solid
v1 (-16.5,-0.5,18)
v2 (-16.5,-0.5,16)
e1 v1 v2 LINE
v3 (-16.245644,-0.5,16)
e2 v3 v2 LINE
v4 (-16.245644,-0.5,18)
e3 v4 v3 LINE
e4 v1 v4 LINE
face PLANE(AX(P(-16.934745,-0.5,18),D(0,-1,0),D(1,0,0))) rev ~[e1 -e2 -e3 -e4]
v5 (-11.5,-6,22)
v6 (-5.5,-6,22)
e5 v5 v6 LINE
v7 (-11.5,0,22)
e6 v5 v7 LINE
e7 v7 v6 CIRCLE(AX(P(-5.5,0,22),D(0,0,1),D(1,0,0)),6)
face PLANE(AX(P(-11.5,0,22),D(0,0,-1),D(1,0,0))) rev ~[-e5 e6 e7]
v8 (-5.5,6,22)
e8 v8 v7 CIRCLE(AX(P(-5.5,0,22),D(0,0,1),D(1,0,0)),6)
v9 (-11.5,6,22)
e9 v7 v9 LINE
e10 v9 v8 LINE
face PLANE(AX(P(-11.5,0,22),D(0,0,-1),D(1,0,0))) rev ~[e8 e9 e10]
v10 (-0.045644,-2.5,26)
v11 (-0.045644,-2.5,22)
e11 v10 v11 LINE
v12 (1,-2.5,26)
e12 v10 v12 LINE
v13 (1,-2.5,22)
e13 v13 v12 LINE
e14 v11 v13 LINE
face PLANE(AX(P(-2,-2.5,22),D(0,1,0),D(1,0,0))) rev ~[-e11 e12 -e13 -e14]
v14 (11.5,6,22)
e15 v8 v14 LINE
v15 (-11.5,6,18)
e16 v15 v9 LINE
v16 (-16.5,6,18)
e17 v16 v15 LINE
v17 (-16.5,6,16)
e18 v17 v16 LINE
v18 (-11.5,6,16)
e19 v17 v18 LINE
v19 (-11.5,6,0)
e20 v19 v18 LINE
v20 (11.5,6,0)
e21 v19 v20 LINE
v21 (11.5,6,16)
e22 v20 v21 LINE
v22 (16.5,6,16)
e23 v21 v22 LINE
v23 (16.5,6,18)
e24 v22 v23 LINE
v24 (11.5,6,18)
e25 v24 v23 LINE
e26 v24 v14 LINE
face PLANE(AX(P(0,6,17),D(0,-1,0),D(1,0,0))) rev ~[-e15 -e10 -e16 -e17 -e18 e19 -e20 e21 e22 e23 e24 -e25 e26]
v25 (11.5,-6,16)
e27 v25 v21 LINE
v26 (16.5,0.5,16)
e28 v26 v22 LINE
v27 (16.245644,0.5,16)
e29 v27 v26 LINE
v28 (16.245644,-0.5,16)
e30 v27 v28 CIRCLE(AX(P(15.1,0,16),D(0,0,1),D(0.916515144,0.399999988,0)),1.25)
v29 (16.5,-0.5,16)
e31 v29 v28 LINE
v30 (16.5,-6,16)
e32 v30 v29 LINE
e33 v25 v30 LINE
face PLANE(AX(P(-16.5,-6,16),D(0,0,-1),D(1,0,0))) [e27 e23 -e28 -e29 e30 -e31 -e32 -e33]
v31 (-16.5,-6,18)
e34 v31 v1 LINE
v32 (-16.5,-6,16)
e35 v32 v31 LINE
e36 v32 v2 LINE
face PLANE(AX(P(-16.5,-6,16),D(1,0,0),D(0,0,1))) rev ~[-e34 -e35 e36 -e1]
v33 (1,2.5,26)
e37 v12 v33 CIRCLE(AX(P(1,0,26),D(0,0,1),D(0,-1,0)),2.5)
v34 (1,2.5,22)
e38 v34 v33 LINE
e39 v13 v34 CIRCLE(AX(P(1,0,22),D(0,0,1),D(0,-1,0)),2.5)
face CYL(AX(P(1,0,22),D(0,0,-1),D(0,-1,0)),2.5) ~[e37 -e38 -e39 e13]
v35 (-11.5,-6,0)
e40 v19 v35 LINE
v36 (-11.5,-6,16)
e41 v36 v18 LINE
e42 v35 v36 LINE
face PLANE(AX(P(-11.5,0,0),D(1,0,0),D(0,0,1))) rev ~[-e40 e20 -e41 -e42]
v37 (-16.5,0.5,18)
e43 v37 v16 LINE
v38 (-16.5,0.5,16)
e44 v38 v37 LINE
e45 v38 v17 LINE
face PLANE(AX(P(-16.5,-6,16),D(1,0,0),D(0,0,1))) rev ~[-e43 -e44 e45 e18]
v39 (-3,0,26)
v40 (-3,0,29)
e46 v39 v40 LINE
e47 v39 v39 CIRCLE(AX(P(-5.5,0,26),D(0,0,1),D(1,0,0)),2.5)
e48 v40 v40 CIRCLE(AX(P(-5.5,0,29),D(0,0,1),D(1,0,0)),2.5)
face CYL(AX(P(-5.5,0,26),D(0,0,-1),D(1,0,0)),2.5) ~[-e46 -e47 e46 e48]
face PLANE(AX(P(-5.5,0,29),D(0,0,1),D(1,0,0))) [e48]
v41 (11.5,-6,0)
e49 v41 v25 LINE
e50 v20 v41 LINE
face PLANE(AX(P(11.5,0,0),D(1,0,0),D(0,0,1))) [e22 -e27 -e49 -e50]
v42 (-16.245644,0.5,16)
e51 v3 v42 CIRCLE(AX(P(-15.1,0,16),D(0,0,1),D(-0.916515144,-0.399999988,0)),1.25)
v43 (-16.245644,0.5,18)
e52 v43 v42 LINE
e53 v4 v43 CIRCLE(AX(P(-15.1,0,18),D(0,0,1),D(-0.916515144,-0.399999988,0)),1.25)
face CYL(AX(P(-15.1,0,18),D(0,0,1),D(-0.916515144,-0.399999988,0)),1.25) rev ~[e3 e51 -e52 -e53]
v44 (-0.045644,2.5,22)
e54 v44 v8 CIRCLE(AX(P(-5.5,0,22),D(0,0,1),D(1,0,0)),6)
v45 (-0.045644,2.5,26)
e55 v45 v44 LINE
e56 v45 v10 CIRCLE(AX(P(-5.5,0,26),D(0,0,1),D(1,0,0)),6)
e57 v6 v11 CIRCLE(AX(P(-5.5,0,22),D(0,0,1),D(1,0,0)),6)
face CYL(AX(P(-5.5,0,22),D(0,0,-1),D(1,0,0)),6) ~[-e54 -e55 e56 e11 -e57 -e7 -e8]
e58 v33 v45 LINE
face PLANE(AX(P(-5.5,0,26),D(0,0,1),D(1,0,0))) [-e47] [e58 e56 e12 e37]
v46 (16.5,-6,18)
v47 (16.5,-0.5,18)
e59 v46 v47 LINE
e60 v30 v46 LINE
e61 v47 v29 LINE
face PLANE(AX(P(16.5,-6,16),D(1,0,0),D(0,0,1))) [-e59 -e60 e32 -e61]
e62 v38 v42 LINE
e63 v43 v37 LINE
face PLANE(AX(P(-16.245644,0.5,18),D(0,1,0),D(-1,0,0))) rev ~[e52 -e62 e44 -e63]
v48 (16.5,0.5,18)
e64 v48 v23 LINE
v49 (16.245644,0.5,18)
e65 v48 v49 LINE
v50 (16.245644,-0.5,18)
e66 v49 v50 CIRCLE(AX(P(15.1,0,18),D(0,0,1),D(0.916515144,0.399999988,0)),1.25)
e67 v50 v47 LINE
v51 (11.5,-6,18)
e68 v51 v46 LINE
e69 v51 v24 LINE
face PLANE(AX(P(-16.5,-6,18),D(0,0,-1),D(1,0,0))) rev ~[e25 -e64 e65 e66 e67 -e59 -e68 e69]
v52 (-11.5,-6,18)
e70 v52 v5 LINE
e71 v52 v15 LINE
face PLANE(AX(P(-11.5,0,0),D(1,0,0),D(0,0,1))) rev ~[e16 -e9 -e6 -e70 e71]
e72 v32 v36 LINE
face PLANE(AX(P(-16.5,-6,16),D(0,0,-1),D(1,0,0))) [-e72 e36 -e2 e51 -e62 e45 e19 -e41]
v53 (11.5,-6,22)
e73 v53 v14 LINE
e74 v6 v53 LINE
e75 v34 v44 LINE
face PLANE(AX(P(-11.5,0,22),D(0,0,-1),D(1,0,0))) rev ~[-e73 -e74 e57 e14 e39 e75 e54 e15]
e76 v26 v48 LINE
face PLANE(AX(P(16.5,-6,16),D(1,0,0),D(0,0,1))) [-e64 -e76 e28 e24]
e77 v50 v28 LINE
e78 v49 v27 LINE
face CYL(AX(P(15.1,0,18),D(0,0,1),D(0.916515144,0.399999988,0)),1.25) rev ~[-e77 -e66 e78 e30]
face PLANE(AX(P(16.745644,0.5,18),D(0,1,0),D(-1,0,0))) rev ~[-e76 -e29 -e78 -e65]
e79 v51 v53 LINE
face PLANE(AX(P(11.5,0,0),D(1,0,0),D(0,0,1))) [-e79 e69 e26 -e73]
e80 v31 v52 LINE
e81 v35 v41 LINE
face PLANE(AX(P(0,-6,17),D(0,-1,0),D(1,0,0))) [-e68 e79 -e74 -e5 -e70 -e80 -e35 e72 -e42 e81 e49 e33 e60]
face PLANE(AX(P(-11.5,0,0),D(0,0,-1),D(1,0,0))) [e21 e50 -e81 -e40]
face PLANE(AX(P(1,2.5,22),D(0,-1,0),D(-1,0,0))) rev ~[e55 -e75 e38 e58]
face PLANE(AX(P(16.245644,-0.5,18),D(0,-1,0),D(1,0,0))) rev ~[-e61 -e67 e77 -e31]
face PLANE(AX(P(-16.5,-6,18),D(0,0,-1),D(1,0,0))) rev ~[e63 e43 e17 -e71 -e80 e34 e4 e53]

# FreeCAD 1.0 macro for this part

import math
import FreeCAD as App
import Part
import Sketcher

V = App.Vector

doc = App.newDocument("Part")
body = doc.addObject("PartDesign::Body", "Body")

sketch1 = body.newObject("Sketcher::SketchObject", "Sketch")
sketch1.AttachmentSupport = (doc.getObject("XZ_Plane"), [""])
sketch1.MapMode = "FlatFace"
sketch1.addGeometry([
    Part.LineSegment(V(-12, 22, 0), V(-12, 0, 0)),
    Part.LineSegment(V(-12, 0, 0), V(12, 0, 0)),
    Part.LineSegment(V(12, 0, 0), V(12, 22, 0)),
    Part.LineSegment(V(12, 22, 0), V(-12, 22, 0)),
], False)
sketch1.addConstraint([
    Sketcher.Constraint("Coincident", 0, 2, 1, 1),
    Sketcher.Constraint("Coincident", 1, 2, 2, 1),
    Sketcher.Constraint("Coincident", 2, 2, 3, 1),
    Sketcher.Constraint("Coincident", 3, 2, 0, 1),
    Sketcher.Constraint("Vertical", 0),
    Sketcher.Constraint("Horizontal", 1),
    Sketcher.Constraint("Vertical", 2),
    Sketcher.Constraint("Horizontal", 3),
    Sketcher.Constraint("Symmetric", 0, 2, 1, 2, -1, 1),
    Sketcher.Constraint("DistanceX", 1, 1, 1, 2, 23.0),
    Sketcher.Constraint("DistanceY", 0, 2, 0, 1, 22.0),
])
pad1 = body.newObject("PartDesign::Pad", "Pad")
pad1.Profile = sketch1
pad1.Length = 12
pad1.Midplane = True

sketch2 = body.newObject("Sketcher::SketchObject", "Sketch001")
sketch2.AttachmentSupport = (doc.getObject("XZ_Plane"), [""])
sketch2.MapMode = "FlatFace"
sketch2.AttachmentOffset = App.Placement(V(0, 0, 6), App.Rotation())
sketch2.addGeometry([
    Part.LineSegment(V(-16.5, 18, 0), V(-16.5, 16, 0)),
    Part.LineSegment(V(-16.5, 16, 0), V(16.5, 16, 0)),
    Part.LineSegment(V(16.5, 16, 0), V(16.5, 18, 0)),
    Part.LineSegment(V(16.5, 18, 0), V(-16.5, 18, 0)),
], False)
sketch2.addConstraint([
    Sketcher.Constraint("Coincident", 0, 2, 1, 1),
    Sketcher.Constraint("Coincident", 1, 2, 2, 1),
    Sketcher.Constraint("Coincident", 2, 2, 3, 1),
    Sketcher.Constraint("Coincident", 3, 2, 0, 1),
    Sketcher.Constraint("Vertical", 0),
    Sketcher.Constraint("Horizontal", 1),
    Sketcher.Constraint("Vertical", 2),
    Sketcher.Constraint("Horizontal", 3),
    Sketcher.Constraint("DistanceX", 1, 1, 1, 2, 33.0),
    Sketcher.Constraint("DistanceY", 0, 2, 0, 1, 2.0),
    Sketcher.Constraint("DistanceY", -1, 1, 0, 2, 16.0),
    Sketcher.Constraint("DistanceX", 0, 2, -1, 1, 16.5),
])
pad2 = body.newObject("PartDesign::Pad", "Pad001")
pad2.Profile = sketch2
pad2.Length = 12
pad2.Reversed = True

sketch3 = body.newObject("Sketcher::SketchObject", "Sketch002")
sketch3.AttachmentSupport = (doc.getObject("XY_Plane"), [""])
sketch3.MapMode = "FlatFace"
sketch3.AttachmentOffset = App.Placement(V(0, 0, 22), App.Rotation())
sketch3.addGeometry(Part.Circle(V(-6, 0, 0), V(0, 0, 1), 6), False)
sketch3.addConstraint([
    Sketcher.Constraint("PointOnObject", 0, 3, -1),
    Sketcher.Constraint("Diameter", 0, 12.0),
    Sketcher.Constraint("DistanceX", 0, 3, -1, 1, 5.5),
])
pad3 = body.newObject("PartDesign::Pad", "Pad002")
pad3.Profile = sketch3
pad3.Length = 4

sketch4 = body.newObject("Sketcher::SketchObject", "Sketch003")
sketch4.AttachmentSupport = (doc.getObject("XY_Plane"), [""])
sketch4.MapMode = "FlatFace"
sketch4.AttachmentOffset = App.Placement(V(0, 0, 22), App.Rotation())
sketch4.addGeometry([
    Part.LineSegment(V(-2, -2.5, 0), V(1, -2.5, 0)),
    Part.ArcOfCircle(Part.Circle(V(1, 0, 0), V(0, 0, 1), 2.5), math.radians(-90), math.radians(90)),
    Part.LineSegment(V(1, 2.5, 0), V(-2, 2.5, 0)),
    Part.LineSegment(V(-2, 2.5, 0), V(-2, -2.5, 0)),
], False)
sketch4.addConstraint([
    Sketcher.Constraint("Tangent", 0, 2, 1, 1),
    Sketcher.Constraint("Tangent", 1, 2, 2, 1),
    Sketcher.Constraint("Coincident", 2, 2, 3, 1),
    Sketcher.Constraint("Coincident", 3, 2, 0, 1),
    Sketcher.Constraint("Horizontal", 0),
    Sketcher.Constraint("Horizontal", 2),
    Sketcher.Constraint("Vertical", 3),
    Sketcher.Constraint("PointOnObject", 1, 3, -1),
    Sketcher.Constraint("Radius", 1, 2.5),
    Sketcher.Constraint("DistanceX", 0, 1, 0, 2, 3.0),
    Sketcher.Constraint("DistanceX", -1, 1, 1, 3, 1.0),
])
pad4 = body.newObject("PartDesign::Pad", "Pad003")
pad4.Profile = sketch4
pad4.Length = 4

sketch5 = body.newObject("Sketcher::SketchObject", "Sketch004")
sketch5.AttachmentSupport = (doc.getObject("XY_Plane"), [""])
sketch5.MapMode = "FlatFace"
sketch5.AttachmentOffset = App.Placement(V(0, 0, 26), App.Rotation())
sketch5.addGeometry(Part.Circle(V(-5.5, 0, 0), V(0, 0, 1), 2.5), False)
sketch5.addConstraint([
    Sketcher.Constraint("PointOnObject", 0, 3, -1),
    Sketcher.Constraint("Diameter", 0, 5.0),
    Sketcher.Constraint("DistanceX", 0, 3, -1, 1, 5.5),
])
pad5 = body.newObject("PartDesign::Pad", "Pad004")
pad5.Profile = sketch5
pad5.Length = 3

sketch6 = body.newObject("Sketcher::SketchObject", "Sketch005")
sketch6.AttachmentSupport = (doc.getObject("XY_Plane"), [""])
sketch6.MapMode = "FlatFace"
sketch6.AttachmentOffset = App.Placement(V(0, 0, 18), App.Rotation())
sketch6.addGeometry([
    Part.LineSegment(V(16.7, 0.5, 0), V(16.2, 0.5, 0)),
    Part.ArcOfCircle(Part.Circle(V(15.1, 0, 0), V(0, 0, 1), 1.3), math.radians(24), math.radians(336)),
    Part.LineSegment(V(16.2, -0.5, 0), V(16.7, -0.5, 0)),
    Part.LineSegment(V(16.7, -0.5, 0), V(16.7, 0.5, 0)),
], False)
sketch6.addConstraint([
    Sketcher.Constraint("Coincident", 0, 2, 1, 1),
    Sketcher.Constraint("Coincident", 1, 2, 2, 1),
    Sketcher.Constraint("Coincident", 2, 2, 3, 1),
    Sketcher.Constraint("Coincident", 3, 2, 0, 1),
    Sketcher.Constraint("Horizontal", 0),
    Sketcher.Constraint("Horizontal", 2),
    Sketcher.Constraint("Vertical", 3),
    Sketcher.Constraint("Symmetric", 0, 2, 1, 2, -1),
    Sketcher.Constraint("DistanceY", 3, 1, 3, 2, 1.0),
    Sketcher.Constraint("Radius", 1, 1.25),
    Sketcher.Constraint("DistanceX", 0, 2, 0, 1, 0.5),
    Sketcher.Constraint("DistanceX", -1, 1, 1, 3, 15.1),
])
pocket1 = body.newObject("PartDesign::Pocket", "Pocket")
pocket1.Profile = sketch6
pocket1.Type = "ThroughAll"

sketch7 = body.newObject("Sketcher::SketchObject", "Sketch006")
sketch7.AttachmentSupport = (doc.getObject("XY_Plane"), [""])
sketch7.MapMode = "FlatFace"
sketch7.AttachmentOffset = App.Placement(V(0, 0, 18), App.Rotation())
sketch7.addGeometry([
    Part.LineSegment(V(-16.9, -0.5, 0), V(-16.2, -0.5, 0)),
    Part.ArcOfCircle(Part.Circle(V(-15.1, 0, 0), V(0, 0, 1), 1.3), math.radians(-156), math.radians(156)),
    Part.LineSegment(V(-16.2, 0.5, 0), V(-16.9, 0.5, 0)),
    Part.LineSegment(V(-16.9, 0.5, 0), V(-16.9, -0.5, 0)),
], False)
sketch7.addConstraint([
    Sketcher.Constraint("Coincident", 0, 2, 1, 1),
    Sketcher.Constraint("Coincident", 1, 2, 2, 1),
    Sketcher.Constraint("Coincident", 2, 2, 3, 1),
    Sketcher.Constraint("Coincident", 3, 2, 0, 1),
    Sketcher.Constraint("Horizontal", 0),
    Sketcher.Constraint("Horizontal", 2),
    Sketcher.Constraint("Vertical", 3),
    Sketcher.Constraint("Symmetric", 0, 2, 1, 2, -1),
    Sketcher.Constraint("DistanceY", 3, 2, 3, 1, 1.0),
    Sketcher.Constraint("Radius", 1, 1.25),
    Sketcher.Constraint("DistanceX", 1, 3, -1, 1, 15.1),
    Sketcher.Constraint("DistanceX", 0, 1, 0, 2, 0.689101),
])
pocket2 = body.newObject("PartDesign::Pocket", "Pocket001")
pocket2.Profile = sketch7
pocket2.Type = "ThroughAll"

doc.recompute()
